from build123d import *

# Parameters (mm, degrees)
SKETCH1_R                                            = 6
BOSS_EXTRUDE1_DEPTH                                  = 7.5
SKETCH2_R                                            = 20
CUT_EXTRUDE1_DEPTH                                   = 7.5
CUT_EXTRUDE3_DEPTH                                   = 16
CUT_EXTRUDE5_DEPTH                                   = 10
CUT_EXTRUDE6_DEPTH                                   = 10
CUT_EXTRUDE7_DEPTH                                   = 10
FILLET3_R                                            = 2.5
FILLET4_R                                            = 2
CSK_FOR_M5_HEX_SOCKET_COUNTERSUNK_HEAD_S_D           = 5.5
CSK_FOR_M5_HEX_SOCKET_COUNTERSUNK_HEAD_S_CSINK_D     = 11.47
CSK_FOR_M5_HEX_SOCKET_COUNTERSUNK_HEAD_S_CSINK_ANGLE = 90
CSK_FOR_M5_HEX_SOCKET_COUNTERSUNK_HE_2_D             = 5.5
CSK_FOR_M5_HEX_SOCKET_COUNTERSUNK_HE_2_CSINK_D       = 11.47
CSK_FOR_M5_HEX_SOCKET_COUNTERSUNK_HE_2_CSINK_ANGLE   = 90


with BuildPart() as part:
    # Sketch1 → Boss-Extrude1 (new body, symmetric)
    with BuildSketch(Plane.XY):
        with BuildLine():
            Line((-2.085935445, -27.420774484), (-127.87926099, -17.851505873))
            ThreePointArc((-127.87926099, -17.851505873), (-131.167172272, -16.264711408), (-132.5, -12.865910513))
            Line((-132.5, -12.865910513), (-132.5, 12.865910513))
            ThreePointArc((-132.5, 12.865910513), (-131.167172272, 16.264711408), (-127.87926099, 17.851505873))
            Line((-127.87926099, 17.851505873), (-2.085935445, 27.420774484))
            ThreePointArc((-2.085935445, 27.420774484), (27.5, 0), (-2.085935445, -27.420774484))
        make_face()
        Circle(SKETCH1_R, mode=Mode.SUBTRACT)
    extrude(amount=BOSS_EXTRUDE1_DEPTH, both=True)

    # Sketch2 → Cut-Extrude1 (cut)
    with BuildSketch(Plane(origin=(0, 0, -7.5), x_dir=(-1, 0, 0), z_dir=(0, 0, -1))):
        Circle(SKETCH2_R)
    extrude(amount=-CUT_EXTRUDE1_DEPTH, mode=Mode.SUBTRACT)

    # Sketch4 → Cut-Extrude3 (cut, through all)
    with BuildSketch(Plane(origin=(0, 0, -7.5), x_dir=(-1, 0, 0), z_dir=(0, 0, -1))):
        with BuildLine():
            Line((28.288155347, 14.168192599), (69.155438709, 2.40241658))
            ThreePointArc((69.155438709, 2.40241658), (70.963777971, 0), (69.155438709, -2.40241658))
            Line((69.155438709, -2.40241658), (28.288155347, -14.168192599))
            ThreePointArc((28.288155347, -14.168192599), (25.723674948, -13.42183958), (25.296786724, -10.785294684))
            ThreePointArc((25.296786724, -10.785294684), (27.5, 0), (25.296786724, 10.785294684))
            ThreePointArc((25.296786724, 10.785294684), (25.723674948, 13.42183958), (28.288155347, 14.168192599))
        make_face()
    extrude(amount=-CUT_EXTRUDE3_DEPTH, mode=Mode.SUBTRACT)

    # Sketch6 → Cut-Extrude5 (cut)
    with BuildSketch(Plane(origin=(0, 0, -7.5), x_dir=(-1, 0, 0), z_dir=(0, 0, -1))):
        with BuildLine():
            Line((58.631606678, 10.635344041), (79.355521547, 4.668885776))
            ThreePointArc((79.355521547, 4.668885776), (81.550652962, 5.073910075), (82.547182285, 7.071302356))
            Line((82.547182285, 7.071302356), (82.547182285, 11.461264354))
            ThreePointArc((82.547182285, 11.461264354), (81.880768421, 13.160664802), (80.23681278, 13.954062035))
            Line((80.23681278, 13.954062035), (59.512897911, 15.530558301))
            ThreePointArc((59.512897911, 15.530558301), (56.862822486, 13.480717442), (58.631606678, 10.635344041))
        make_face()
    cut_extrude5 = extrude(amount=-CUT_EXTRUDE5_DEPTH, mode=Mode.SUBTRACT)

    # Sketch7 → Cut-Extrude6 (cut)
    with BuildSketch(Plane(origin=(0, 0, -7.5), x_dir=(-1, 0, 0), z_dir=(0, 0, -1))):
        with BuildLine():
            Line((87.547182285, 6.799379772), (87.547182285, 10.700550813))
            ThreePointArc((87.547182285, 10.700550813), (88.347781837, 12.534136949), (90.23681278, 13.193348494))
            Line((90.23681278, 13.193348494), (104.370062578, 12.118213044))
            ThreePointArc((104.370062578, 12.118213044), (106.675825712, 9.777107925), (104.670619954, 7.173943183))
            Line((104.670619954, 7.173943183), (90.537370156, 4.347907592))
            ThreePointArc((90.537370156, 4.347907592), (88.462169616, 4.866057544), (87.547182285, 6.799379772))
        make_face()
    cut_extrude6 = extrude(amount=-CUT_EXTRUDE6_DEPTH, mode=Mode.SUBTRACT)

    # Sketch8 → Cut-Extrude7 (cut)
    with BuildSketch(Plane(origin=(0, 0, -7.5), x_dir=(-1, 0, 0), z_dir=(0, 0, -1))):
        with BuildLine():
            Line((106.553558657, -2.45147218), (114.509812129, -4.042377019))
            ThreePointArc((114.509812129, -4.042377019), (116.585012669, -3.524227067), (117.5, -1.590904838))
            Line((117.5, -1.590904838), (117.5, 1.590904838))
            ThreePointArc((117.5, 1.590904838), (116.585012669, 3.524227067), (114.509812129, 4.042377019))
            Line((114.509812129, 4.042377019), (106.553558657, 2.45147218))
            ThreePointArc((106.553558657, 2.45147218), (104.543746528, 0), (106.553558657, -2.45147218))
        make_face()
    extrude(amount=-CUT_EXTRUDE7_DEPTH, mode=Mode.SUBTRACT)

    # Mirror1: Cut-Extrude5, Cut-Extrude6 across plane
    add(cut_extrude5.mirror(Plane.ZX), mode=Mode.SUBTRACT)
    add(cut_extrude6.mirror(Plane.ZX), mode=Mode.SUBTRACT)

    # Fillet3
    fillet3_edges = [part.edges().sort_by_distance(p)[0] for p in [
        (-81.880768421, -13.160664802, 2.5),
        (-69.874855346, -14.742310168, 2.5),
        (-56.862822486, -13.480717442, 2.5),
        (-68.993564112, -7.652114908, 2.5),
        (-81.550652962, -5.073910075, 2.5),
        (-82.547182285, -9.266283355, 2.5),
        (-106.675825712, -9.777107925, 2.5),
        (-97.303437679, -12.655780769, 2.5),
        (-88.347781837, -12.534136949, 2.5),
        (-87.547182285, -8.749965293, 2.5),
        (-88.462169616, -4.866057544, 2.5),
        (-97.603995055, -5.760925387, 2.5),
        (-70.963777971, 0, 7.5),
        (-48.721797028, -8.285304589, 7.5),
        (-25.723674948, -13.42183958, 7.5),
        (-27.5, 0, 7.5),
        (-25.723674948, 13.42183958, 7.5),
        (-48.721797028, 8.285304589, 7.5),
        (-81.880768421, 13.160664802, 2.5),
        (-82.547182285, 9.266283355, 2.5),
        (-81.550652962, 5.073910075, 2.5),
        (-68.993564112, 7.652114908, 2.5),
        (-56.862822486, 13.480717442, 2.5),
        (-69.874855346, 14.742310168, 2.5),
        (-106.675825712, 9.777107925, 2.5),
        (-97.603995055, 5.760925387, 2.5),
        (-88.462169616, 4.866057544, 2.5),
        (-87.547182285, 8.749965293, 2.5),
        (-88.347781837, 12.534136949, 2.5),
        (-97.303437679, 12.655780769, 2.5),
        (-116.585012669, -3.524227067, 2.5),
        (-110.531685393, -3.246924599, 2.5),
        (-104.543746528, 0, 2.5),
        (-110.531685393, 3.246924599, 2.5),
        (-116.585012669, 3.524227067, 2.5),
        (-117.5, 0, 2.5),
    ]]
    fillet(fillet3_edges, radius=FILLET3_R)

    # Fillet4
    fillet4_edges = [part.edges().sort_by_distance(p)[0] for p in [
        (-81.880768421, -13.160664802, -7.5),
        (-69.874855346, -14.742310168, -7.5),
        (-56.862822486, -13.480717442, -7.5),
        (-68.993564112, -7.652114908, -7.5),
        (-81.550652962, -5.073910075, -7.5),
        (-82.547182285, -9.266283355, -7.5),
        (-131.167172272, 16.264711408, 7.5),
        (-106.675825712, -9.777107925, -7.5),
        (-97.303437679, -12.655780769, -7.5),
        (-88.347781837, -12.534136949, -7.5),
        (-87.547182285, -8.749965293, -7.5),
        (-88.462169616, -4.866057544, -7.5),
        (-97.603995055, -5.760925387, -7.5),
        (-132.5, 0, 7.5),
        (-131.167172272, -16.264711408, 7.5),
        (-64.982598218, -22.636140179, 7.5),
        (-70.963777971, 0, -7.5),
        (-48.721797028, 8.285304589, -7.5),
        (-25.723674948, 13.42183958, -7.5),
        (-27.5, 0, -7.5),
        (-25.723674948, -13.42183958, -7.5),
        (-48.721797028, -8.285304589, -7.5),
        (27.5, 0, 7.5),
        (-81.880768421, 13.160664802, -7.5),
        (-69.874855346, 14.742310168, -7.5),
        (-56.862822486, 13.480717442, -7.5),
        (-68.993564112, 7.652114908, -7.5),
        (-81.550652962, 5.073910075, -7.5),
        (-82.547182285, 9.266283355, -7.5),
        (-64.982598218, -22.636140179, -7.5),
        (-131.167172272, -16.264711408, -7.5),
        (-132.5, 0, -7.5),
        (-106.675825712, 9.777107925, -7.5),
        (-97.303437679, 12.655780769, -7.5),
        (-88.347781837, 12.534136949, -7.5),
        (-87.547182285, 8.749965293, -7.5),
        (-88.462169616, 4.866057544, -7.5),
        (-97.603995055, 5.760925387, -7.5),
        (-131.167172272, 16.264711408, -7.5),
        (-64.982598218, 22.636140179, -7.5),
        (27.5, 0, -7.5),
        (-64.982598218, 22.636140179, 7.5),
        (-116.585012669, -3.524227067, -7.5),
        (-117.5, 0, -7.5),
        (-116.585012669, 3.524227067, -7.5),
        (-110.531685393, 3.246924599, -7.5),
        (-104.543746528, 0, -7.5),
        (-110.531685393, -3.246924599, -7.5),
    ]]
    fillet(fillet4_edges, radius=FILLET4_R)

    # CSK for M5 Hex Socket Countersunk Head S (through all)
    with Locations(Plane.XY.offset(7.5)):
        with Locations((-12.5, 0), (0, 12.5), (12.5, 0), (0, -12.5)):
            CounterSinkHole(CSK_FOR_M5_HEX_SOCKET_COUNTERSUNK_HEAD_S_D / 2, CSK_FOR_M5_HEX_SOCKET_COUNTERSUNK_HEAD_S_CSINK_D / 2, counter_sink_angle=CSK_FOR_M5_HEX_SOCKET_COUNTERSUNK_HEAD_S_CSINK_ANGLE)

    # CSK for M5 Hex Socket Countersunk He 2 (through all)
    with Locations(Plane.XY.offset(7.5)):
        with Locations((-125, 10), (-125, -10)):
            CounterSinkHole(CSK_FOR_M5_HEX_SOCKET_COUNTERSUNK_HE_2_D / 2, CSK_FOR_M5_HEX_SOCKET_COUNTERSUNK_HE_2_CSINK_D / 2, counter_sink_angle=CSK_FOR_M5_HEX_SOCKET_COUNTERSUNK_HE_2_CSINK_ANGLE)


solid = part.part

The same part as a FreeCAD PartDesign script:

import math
import FreeCAD as App
import Part
import Sketcher
from FreeCAD import Vector
Q = App.Units.Quantity


def edges_at(feature, points):
    """Names of the edges that pass closest to the given points."""
    edges = feature.Shape.Edges
    near = lambda p: min(range(len(edges)), key=lambda i: edges[i].distToShape(Part.Vertex(*p))[0])
    return sorted({f"Edge{near(p) + 1}" for p in points})

doc = App.newDocument("Part")
body = doc.addObject("PartDesign::Body", "Body")

# Sketch on XY plane
sketch1 = body.newObject("Sketcher::SketchObject", "Sketch")
sketch1.AttachmentSupport = (doc.getObject("XY_Plane"), [""])
sketch1.MapMode = "FlatFace"
sketch1.addGeometry(Part.LineSegment(Vector(-128, -18, 0), Vector(-2, -27, 0)), False)
sketch1.addGeometry(Part.ArcOfCircle(Part.Circle(Vector(0, 0, 0), Vector(0, 0, 1), 28), math.radians(-94), math.radians(94)), False)
sketch1.addGeometry(Part.LineSegment(Vector(-2, 27, 0), Vector(-128, 18, 0)), False)
sketch1.addGeometry(Part.ArcOfCircle(Part.Circle(Vector(-128, 13, 0), Vector(0, 0, 1), 5), math.radians(94), math.radians(180)), False)
sketch1.addGeometry(Part.LineSegment(Vector(-132, 13, 0), Vector(-132, -13, 0)), False)
sketch1.addGeometry(Part.ArcOfCircle(Part.Circle(Vector(-128, -13, 0), Vector(0, 0, 1), 5), math.radians(180), math.radians(266)), False)
sketch1.addGeometry(Part.Circle(Vector(0, 0, 0), Vector(0, 0, 1), 6), False)
sketch1.addConstraint(Sketcher.Constraint("Tangent", 0, 2, 1, 1))
sketch1.addConstraint(Sketcher.Constraint("Tangent", 1, 2, 2, 1))
sketch1.addConstraint(Sketcher.Constraint("Tangent", 2, 2, 3, 1))
sketch1.addConstraint(Sketcher.Constraint("Tangent", 3, 2, 4, 1))
sketch1.addConstraint(Sketcher.Constraint("Tangent", 4, 2, 5, 1))
sketch1.addConstraint(Sketcher.Constraint("Tangent", 5, 2, 0, 1))
sketch1.addConstraint(Sketcher.Constraint("Vertical", 4))
sketch1.addConstraint(Sketcher.Constraint("Coincident", 1, 3, -1, 1))
sketch1.addConstraint(Sketcher.Constraint("Coincident", 6, 3, -1, 1))
sketch1.addConstraint(Sketcher.Constraint("Equal", 3, 5))
sketch1.addConstraint(Sketcher.Constraint("Vertical", 0, 2, 1, 2))
sketch1.addConstraint(Sketcher.Constraint("Diameter", 6, Q("12 mm")))
sketch1.addConstraint(Sketcher.Constraint("Radius", 3, Q("5 mm")))
sketch1.addConstraint(Sketcher.Constraint("Radius", 1, Q("27.5 mm")))
sketch1.addConstraint(Sketcher.Constraint("DistanceX", 3, 3, -1, 1, Q("127.5 mm")))
sketch1.addConstraint(Sketcher.Constraint("DistanceY", 4, 2, 4, 1, Q("25.731821 mm")))
pad1 = body.newObject("PartDesign::Pad", "Pad")
pad1.Profile = sketch1
pad1.Length = 15
pad1.Midplane = True

# Sketch on XY plane
sketch2 = body.newObject("Sketcher::SketchObject", "Sketch001")
sketch2.AttachmentSupport = (doc.getObject("XY_Plane"), [""])
sketch2.MapMode = "FlatFace"
sketch2.AttachmentOffset = App.Placement(Vector(0, 0, -7.5), App.Rotation())
sketch2.addGeometry(Part.Circle(Vector(0, 0, 0), Vector(0, 0, 1), 20), False)
sketch2.addConstraint(Sketcher.Constraint("Coincident", 0, 3, -1, 1))
sketch2.addConstraint(Sketcher.Constraint("Diameter", 0, Q("40 mm")))
pocket1 = body.newObject("PartDesign::Pocket", "Pocket")
pocket1.Profile = sketch2
pocket1.Length = 7.5
pocket1.Reversed = True

# Sketch on XY plane
sketch3 = body.newObject("Sketcher::SketchObject", "Sketch002")
sketch3.AttachmentSupport = (doc.getObject("XY_Plane"), [""])
sketch3.MapMode = "FlatFace"
sketch3.AttachmentOffset = App.Placement(Vector(0, 0, -7.5), App.Rotation())
sketch3.addGeometry(Part.LineSegment(Vector(-69.2, 2.4, 0), Vector(-28.3, 14.2, 0)), False)
sketch3.addGeometry(Part.ArcOfCircle(Part.Circle(Vector(-27.6, 11.8, 0), Vector(0, 0, 1), 2.5), math.radians(-23), math.radians(106)), False)
sketch3.addGeometry(Part.ArcOfCircle(Part.Circle(Vector(0, 0, 0), Vector(0, 0, 1), 27.5), math.radians(157), math.radians(203)), False)
sketch3.addGeometry(Part.ArcOfCircle(Part.Circle(Vector(-27.6, -11.8, 0), Vector(0, 0, 1), 2.5), math.radians(-106), math.radians(23)), False)
sketch3.addGeometry(Part.LineSegment(Vector(-28.3, -14.2, 0), Vector(-69.2, -2.4, 0)), False)
sketch3.addGeometry(Part.ArcOfCircle(Part.Circle(Vector(-68.5, 0, 0), Vector(0, 0, 1), 2.5), math.radians(106), math.radians(254)), False)
sketch3.addConstraint(Sketcher.Constraint("Tangent", 0, 2, 1, 2))
sketch3.addConstraint(Sketcher.Constraint("Tangent", 1, 1, 2, 1))
sketch3.addConstraint(Sketcher.Constraint("Tangent", 2, 2, 3, 2))
sketch3.addConstraint(Sketcher.Constraint("Tangent", 3, 1, 4, 1))
sketch3.addConstraint(Sketcher.Constraint("Tangent", 4, 2, 5, 2))
sketch3.addConstraint(Sketcher.Constraint("Tangent", 5, 1, 0, 1))
sketch3.addConstraint(Sketcher.Constraint("Coincident", 2, 3, -1, 1))
sketch3.addConstraint(Sketcher.Constraint("Equal", 1, 3))
sketch3.addConstraint(Sketcher.Constraint("Equal", 3, 5))
sketch3.addConstraint(Sketcher.Constraint("Symmetric", 0, 2, 3, 1, -1))
sketch3.addConstraint(Sketcher.Constraint("Radius", 1, Q("2.5 mm")))
sketch3.addConstraint(Sketcher.Constraint("Radius", 2, Q("27.5 mm")))
sketch3.addConstraint(Sketcher.Constraint("DistanceX", 4, 2, -1, 1, Q("69.155439 mm")))
sketch3.addConstraint(Sketcher.Constraint("DistanceX", 0, 2, 1, 3, Q("0.691661 mm")))
pocket2 = body.newObject("PartDesign::Pocket", "Pocket001")
pocket2.Profile = sketch3
pocket2.Type = "ThroughAll"
pocket2.Reversed = True

# Sketch on XY plane
sketch4 = body.newObject("Sketcher::SketchObject", "Sketch003")
sketch4.AttachmentSupport = (doc.getObject("XY_Plane"), [""])
sketch4.MapMode = "FlatFace"
sketch4.AttachmentOffset = App.Placement(Vector(0, 0, -7.5), App.Rotation())
sketch4.addGeometry(Part.LineSegment(Vector(-58.631607, 10.635344, 0), Vector(-79.355522, 4.668886, 0)), False)
sketch4.addGeometry(Part.ArcOfCircle(Part.Circle(Vector(-80.047182, 7.071302, 0), Vector(0, 0, 1), 2.5), math.radians(180), math.radians(286.06122)), False)
sketch4.addGeometry(Part.LineSegment(Vector(-82.547182, 7.071302, 0), Vector(-82.547182, 11.461264, 0)), False)
sketch4.addGeometry(Part.ArcOfCircle(Part.Circle(Vector(-80.047182, 11.461264, 0), Vector(0, 0, 1), 2.5), math.radians(94.350189), math.radians(180)), False)
sketch4.addGeometry(Part.LineSegment(Vector(-80.236813, 13.954062, 0), Vector(-59.512898, 15.530558, 0)), False)
sketch4.addGeometry(Part.ArcOfCircle(Part.Circle(Vector(-59.323267, 13.037761, 0), Vector(0, 0, 1), 2.5), math.radians(-73.93878), math.radians(94.350189)), False)
sketch4.addConstraint(Sketcher.Constraint("Coincident", 0, 2, 1, 2))
sketch4.addConstraint(Sketcher.Constraint("Coincident", 1, 1, 2, 1))
sketch4.addConstraint(Sketcher.Constraint("Coincident", 2, 2, 3, 2))
sketch4.addConstraint(Sketcher.Constraint("Coincident", 3, 1, 4, 1))
sketch4.addConstraint(Sketcher.Constraint("Coincident", 4, 2, 5, 2))
sketch4.addConstraint(Sketcher.Constraint("Coincident", 5, 1, 0, 1))
sketch4.addConstraint(Sketcher.Constraint("Vertical", 2))
sketch4.addConstraint(Sketcher.Constraint("Radius", 1, Q("2.5 mm")))
sketch4.addConstraint(Sketcher.Constraint("Radius", 3, Q("2.5 mm")))
sketch4.addConstraint(Sketcher.Constraint("Radius", 5, Q("2.5 mm")))
sketch4.addConstraint(Sketcher.Constraint("DistanceY", 2, 1, 2, 2, Q("4.389962 mm")))
sketch4.addConstraint(Sketcher.Constraint("Distance", 4, Q("20.783791 mm")))
sketch4.addConstraint(Sketcher.Constraint("DistanceY", -1, 1, 5, 3, Q("13.037761 mm")))
sketch4.addConstraint(Sketcher.Constraint("DistanceX", 0, 2, -1, 1, Q("79.355522 mm")))
sketch4.addConstraint(Sketcher.Constraint("DistanceY", -1, 1, 4, 2, Q("15.530558 mm")))
sketch4.addConstraint(Sketcher.Constraint("DistanceY", 1, 3, 3, 3, Q("4.389962 mm")))
sketch4.addConstraint(Sketcher.Constraint("DistanceY", 1, 3, 5, 3, Q("5.966458 mm")))
sketch4.addConstraint(Sketcher.Constraint("DistanceX", 1, 3, 0, 2, Q("0.691661 mm")))
sketch4.addConstraint(Sketcher.Constraint("DistanceY", 1, 1, 3, 3, Q("4.389962 mm")))
sketch4.addConstraint(Sketcher.Constraint("DistanceX", 3, 1, 3, 3, Q("0.18963 mm")))
sketch4.addConstraint(Sketcher.Constraint("DistanceX", 5, 3, 5, 1, Q("0.691661 mm")))
pocket3 = body.newObject("PartDesign::Pocket", "Pocket002")
pocket3.Profile = sketch4
pocket3.Length = 10
pocket3.Reversed = True

# Sketch on XY plane
sketch5 = body.newObject("Sketcher::SketchObject", "Sketch004")
sketch5.AttachmentSupport = (doc.getObject("XY_Plane"), [""])
sketch5.MapMode = "FlatFace"
sketch5.AttachmentOffset = App.Placement(Vector(0, 0, -7.5), App.Rotation())
sketch5.addGeometry(Part.LineSegment(Vector(-87.547182, 10.700551, 0), Vector(-87.547182, 6.79938, 0)), False)
sketch5.addGeometry(Part.ArcOfCircle(Part.Circle(Vector(-90.047182, 6.79938, 0), Vector(0, 0, 1), 2.5), math.radians(-101.307538), math.radians(0)), False)
sketch5.addGeometry(Part.LineSegment(Vector(-90.53737, 4.347908, 0), Vector(-104.67062, 7.173943, 0)), False)
sketch5.addGeometry(Part.ArcOfCircle(Part.Circle(Vector(-104.180432, 9.625415, 0), Vector(0, 0, 1), 2.5), math.radians(94.350189), math.radians(258.692462)), False)
sketch5.addGeometry(Part.LineSegment(Vector(-104.370063, 12.118213, 0), Vector(-90.236813, 13.193348, 0)), False)
sketch5.addGeometry(Part.ArcOfCircle(Part.Circle(Vector(-90.047182, 10.700551, 0), Vector(0, 0, 1), 2.5), math.radians(0), math.radians(94.350189)), False)
sketch5.addConstraint(Sketcher.Constraint("Coincident", 0, 2, 1, 2))
sketch5.addConstraint(Sketcher.Constraint("Coincident", 1, 1, 2, 1))
sketch5.addConstraint(Sketcher.Constraint("Coincident", 2, 2, 3, 2))
sketch5.addConstraint(Sketcher.Constraint("Coincident", 3, 1, 4, 1))
sketch5.addConstraint(Sketcher.Constraint("Coincident", 4, 2, 5, 2))
sketch5.addConstraint(Sketcher.Constraint("Coincident", 5, 1, 0, 1))
sketch5.addConstraint(Sketcher.Constraint("Vertical", 0))
sketch5.addConstraint(Sketcher.Constraint("Radius", 1, Q("2.5 mm")))
sketch5.addConstraint(Sketcher.Constraint("Radius", 3, Q("2.5 mm")))
sketch5.addConstraint(Sketcher.Constraint("Radius", 5, Q("2.5 mm")))
sketch5.addConstraint(Sketcher.Constraint("DistanceY", 0, 2, 0, 1, Q("3.901171 mm")))
sketch5.addConstraint(Sketcher.Constraint("DistanceY", -1, 1, 1, 3, Q("6.79938 mm")))
sketch5.addConstraint(Sketcher.Constraint("DistanceY", -1, 1, 5, 3, Q("10.700551 mm")))
sketch5.addConstraint(Sketcher.Constraint("DistanceY", -1, 1, 0, 2, Q("6.79938 mm")))
sketch5.addConstraint(Sketcher.Constraint("DistanceX", 1, 1, -1, 1, Q("90.53737 mm")))
sketch5.addConstraint(Sketcher.Constraint("DistanceX", 2, 2, -1, 1, Q("104.67062 mm")))
sketch5.addConstraint(Sketcher.Constraint("DistanceY", -1, 1, 4, 2, Q("13.193348 mm")))
sketch5.addConstraint(Sketcher.Constraint("DistanceX", 3, 3, 1, 3, Q("14.13325 mm")))
sketch5.addConstraint(Sketcher.Constraint("DistanceX", 3, 3, 1, 1, Q("13.643062 mm")))
sketch5.addConstraint(Sketcher.Constraint("DistanceX", 3, 1, 3, 3, Q("0.18963 mm")))
sketch5.addConstraint(Sketcher.Constraint("Distance", 2, Q("14.413023 mm")))
pocket4 = body.newObject("PartDesign::Pocket", "Pocket003")
pocket4.Profile = sketch5
pocket4.Length = 10
pocket4.Reversed = True

# Sketch on XY plane
sketch6 = body.newObject("Sketcher::SketchObject", "Sketch005")
sketch6.AttachmentSupport = (doc.getObject("XY_Plane"), [""])
sketch6.MapMode = "FlatFace"
sketch6.AttachmentOffset = App.Placement(Vector(0, 0, -7.5), App.Rotation())
sketch6.addGeometry(Part.LineSegment(Vector(-106.6, -2.5, 0), Vector(-114.5, -4, 0)), False)
sketch6.addGeometry(Part.ArcOfCircle(Part.Circle(Vector(-115, -1.6, 0), Vector(0, 0, 1), 2.5), math.radians(180), math.radians(281)), False)
sketch6.addGeometry(Part.LineSegment(Vector(-117.5, -1.6, 0), Vector(-117.5, 1.6, 0)), False)
sketch6.addGeometry(Part.ArcOfCircle(Part.Circle(Vector(-115, 1.6, 0), Vector(0, 0, 1), 2.5), math.radians(79), math.radians(180)), False)
sketch6.addGeometry(Part.LineSegment(Vector(-114.5, 4, 0), Vector(-106.6, 2.5, 0)), False)
sketch6.addGeometry(Part.ArcOfCircle(Part.Circle(Vector(-107, 0, 0), Vector(0, 0, 1), 2.5), math.radians(-79), math.radians(79)), False)
sketch6.addConstraint(Sketcher.Constraint("Tangent", 0, 2, 1, 2))
sketch6.addConstraint(Sketcher.Constraint("Tangent", 1, 1, 2, 1))
sketch6.addConstraint(Sketcher.Constraint("Tangent", 2, 2, 3, 2))
sketch6.addConstraint(Sketcher.Constraint("Tangent", 3, 1, 4, 1))
sketch6.addConstraint(Sketcher.Constraint("Tangent", 4, 2, 5, 2))
sketch6.addConstraint(Sketcher.Constraint("Tangent", 5, 1, 0, 1))
sketch6.addConstraint(Sketcher.Constraint("Vertical", 2))
sketch6.addConstraint(Sketcher.Constraint("Equal", 1, 3))
sketch6.addConstraint(Sketcher.Constraint("Equal", 3, 5))
sketch6.addConstraint(Sketcher.Constraint("Symmetric", 0, 2, 3, 1, -1))
sketch6.addConstraint(Sketcher.Constraint("Radius", 1, Q("2.5 mm")))
sketch6.addConstraint(Sketcher.Constraint("DistanceX", 1, 3, -1, 1, Q("115 mm")))
sketch6.addConstraint(Sketcher.Constraint("DistanceY", 2, 1, 2, 2, Q("3.18181 mm")))
sketch6.addConstraint(Sketcher.Constraint("Distance", 0, Q("8.113751 mm")))
pocket5 = body.newObject("PartDesign::Pocket", "Pocket004")
pocket5.Profile = sketch6
pocket5.Length = 10
pocket5.Reversed = True
doc.recompute()

mirrored = body.newObject("PartDesign::Mirrored", "Mirrored")
mirrored.Originals = [pocket3, pocket4]
mirrored.MirrorPlane = (doc.getObject("XZ_Plane"), [""])
body.Tip = mirrored
doc.recompute()

fillet = body.newObject("PartDesign::Fillet", "Fillet")
fillet.Base = (mirrored, edges_at(mirrored, [
    (-81.881, -13.161, 2.5),
    (-69.875, -14.742, 2.5),
    (-56.863, -13.481, 2.5),
    (-68.994, -7.652, 2.5),
    (-81.551, -5.074, 2.5),
    (-82.547, -9.266, 2.5),
    (-106.676, -9.777, 2.5),
    (-97.303, -12.656, 2.5),
    (-88.348, -12.534, 2.5),
    (-87.547, -8.75, 2.5),
    (-88.462, -4.866, 2.5),
    (-97.604, -5.761, 2.5),
    (-70.964, 0, 7.5),
    (-48.722, -8.285, 7.5),
    (-25.724, -13.422, 7.5),
    (-27.5, 0, 7.5),
    (-25.724, 13.422, 7.5),
    (-48.722, 8.285, 7.5),
    (-81.881, 13.161, 2.5),
    (-82.547, 9.266, 2.5),
    (-81.551, 5.074, 2.5),
    (-68.994, 7.652, 2.5),
    (-56.863, 13.481, 2.5),
    (-69.875, 14.742, 2.5),
    (-106.676, 9.777, 2.5),
    (-97.604, 5.761, 2.5),
    (-88.462, 4.866, 2.5),
    (-87.547, 8.75, 2.5),
    (-88.348, 12.534, 2.5),
    (-97.303, 12.656, 2.5),
    (-116.585, -3.524, 2.5),
    (-110.532, -3.247, 2.5),
    (-104.544, 0, 2.5),
    (-110.532, 3.247, 2.5),
    (-116.585, 3.524, 2.5),
    (-117.5, 0, 2.5),
]))
fillet.Radius = 2.5
doc.recompute()

fillet2 = body.newObject("PartDesign::Fillet", "Fillet001")
fillet2.Base = (fillet, edges_at(fillet, [
    (-81.881, -13.161, -7.5),
    (-69.875, -14.742, -7.5),
    (-56.863, -13.481, -7.5),
    (-68.994, -7.652, -7.5),
    (-81.551, -5.074, -7.5),
    (-82.547, -9.266, -7.5),
    (-131.167, 16.265, 7.5),
    (-106.676, -9.777, -7.5),
    (-97.303, -12.656, -7.5),
    (-88.348, -12.534, -7.5),
    (-87.547, -8.75, -7.5),
    (-88.462, -4.866, -7.5),
    (-97.604, -5.761, -7.5),
    (-132.5, 0, 7.5),
    (-131.167, -16.265, 7.5),
    (-64.983, -22.636, 7.5),
    (-70.964, 0, -7.5),
    (-48.722, 8.285, -7.5),
    (-25.724, 13.422, -7.5),
    (-27.5, 0, -7.5),
    (-25.724, -13.422, -7.5),
    (-48.722, -8.285, -7.5),
    (27.5, 0, 7.5),
    (-81.881, 13.161, -7.5),
    (-69.875, 14.742, -7.5),
    (-56.863, 13.481, -7.5),
    (-68.994, 7.652, -7.5),
    (-81.551, 5.074, -7.5),
    (-82.547, 9.266, -7.5),
    (-64.983, -22.636, -7.5),
    (-131.167, -16.265, -7.5),
    (-132.5, 0, -7.5),
    (-106.676, 9.777, -7.5),
    (-97.303, 12.656, -7.5),
    (-88.348, 12.534, -7.5),
    (-87.547, 8.75, -7.5),
    (-88.462, 4.866, -7.5),
    (-97.604, 5.761, -7.5),
    (-131.167, 16.265, -7.5),
    (-64.983, 22.636, -7.5),
    (27.5, 0, -7.5),
    (-64.983, 22.636, 7.5),
    (-116.585, -3.524, -7.5),
    (-117.5, 0, -7.5),
    (-116.585, 3.524, -7.5),
    (-110.532, 3.247, -7.5),
    (-104.544, 0, -7.5),
    (-110.532, -3.247, -7.5),
]))
fillet2.Radius = 2

# Sketch on XY plane
sketch7 = body.newObject("Sketcher::SketchObject", "Sketch006")
sketch7.AttachmentSupport = (doc.getObject("XY_Plane"), [""])
sketch7.MapMode = "FlatFace"
sketch7.AttachmentOffset = App.Placement(Vector(0, 0, 7.5), App.Rotation())
sketch7.addGeometry(Part.Circle(Vector(-12.5, 0, 0), Vector(0, 0, 1), 2.8), False)
sketch7.addGeometry(Part.Circle(Vector(0, 12.5, 0), Vector(0, 0, 1), 2.8), False)
sketch7.addGeometry(Part.Circle(Vector(12.5, 0, 0), Vector(0, 0, 1), 2.8), False)
sketch7.addGeometry(Part.Circle(Vector(0, -12.5, 0), Vector(0, 0, 1), 2.8), False)
sketch7.addConstraint(Sketcher.Constraint("Equal", 0, 1))
sketch7.addConstraint(Sketcher.Constraint("Equal", 1, 2))
sketch7.addConstraint(Sketcher.Constraint("Equal", 2, 3))
sketch7.addConstraint(Sketcher.Constraint("Symmetric", 0, 3, 2, 3, -1, 1))
sketch7.addConstraint(Sketcher.Constraint("Symmetric", 1, 3, 3, 3, -1, 1))
sketch7.addConstraint(Sketcher.Constraint("PointOnObject", 0, 3, -1))
sketch7.addConstraint(Sketcher.Constraint("PointOnObject", 1, 3, -2))
sketch7.addConstraint(Sketcher.Constraint("Diameter", 0, Q("5.5 mm")))
sketch7.addConstraint(Sketcher.Constraint("DistanceX", 0, 3, 2, 3, Q("25 mm")))
sketch7.addConstraint(Sketcher.Constraint("DistanceY", 3, 3, 1, 3, Q("25 mm")))
doc.recompute()
hole = body.newObject("PartDesign::Hole", "Hole")
hole.Profile = sketch7
hole.ThreadType = "None"
hole.Diameter = 5.5
hole.DepthType = "ThroughAll"
hole.HoleCutType = "Countersink"
hole.HoleCutDiameter = 11.47
hole.HoleCutCountersinkAngle = 90

# Sketch on XY plane
sketch8 = body.newObject("Sketcher::SketchObject", "Sketch007")
sketch8.AttachmentSupport = (doc.getObject("XY_Plane"), [""])
sketch8.MapMode = "FlatFace"
sketch8.AttachmentOffset = App.Placement(Vector(0, 0, 7.5), App.Rotation())
sketch8.addGeometry(Part.Circle(Vector(-125, 10, 0), Vector(0, 0, 1), 2.8), False)
sketch8.addGeometry(Part.Circle(Vector(-125, -10, 0), Vector(0, 0, 1), 2.8), False)
sketch8.addConstraint(Sketcher.Constraint("Equal", 0, 1))
sketch8.addConstraint(Sketcher.Constraint("Symmetric", 0, 3, 1, 3, -1))
sketch8.addConstraint(Sketcher.Constraint("Diameter", 0, Q("5.5 mm")))
sketch8.addConstraint(Sketcher.Constraint("DistanceX", 0, 3, -1, 1, Q("125 mm")))
sketch8.addConstraint(Sketcher.Constraint("DistanceY", -1, 1, 0, 3, Q("10 mm")))
doc.recompute()
hole2 = body.newObject("PartDesign::Hole", "Hole001")
hole2.Profile = sketch8
hole2.ThreadType = "None"
hole2.Diameter = 5.5
hole2.DepthType = "ThroughAll"
hole2.HoleCutType = "Countersink"
hole2.HoleCutDiameter = 11.47
hole2.HoleCutCountersinkAngle = 90

doc.recompute()
